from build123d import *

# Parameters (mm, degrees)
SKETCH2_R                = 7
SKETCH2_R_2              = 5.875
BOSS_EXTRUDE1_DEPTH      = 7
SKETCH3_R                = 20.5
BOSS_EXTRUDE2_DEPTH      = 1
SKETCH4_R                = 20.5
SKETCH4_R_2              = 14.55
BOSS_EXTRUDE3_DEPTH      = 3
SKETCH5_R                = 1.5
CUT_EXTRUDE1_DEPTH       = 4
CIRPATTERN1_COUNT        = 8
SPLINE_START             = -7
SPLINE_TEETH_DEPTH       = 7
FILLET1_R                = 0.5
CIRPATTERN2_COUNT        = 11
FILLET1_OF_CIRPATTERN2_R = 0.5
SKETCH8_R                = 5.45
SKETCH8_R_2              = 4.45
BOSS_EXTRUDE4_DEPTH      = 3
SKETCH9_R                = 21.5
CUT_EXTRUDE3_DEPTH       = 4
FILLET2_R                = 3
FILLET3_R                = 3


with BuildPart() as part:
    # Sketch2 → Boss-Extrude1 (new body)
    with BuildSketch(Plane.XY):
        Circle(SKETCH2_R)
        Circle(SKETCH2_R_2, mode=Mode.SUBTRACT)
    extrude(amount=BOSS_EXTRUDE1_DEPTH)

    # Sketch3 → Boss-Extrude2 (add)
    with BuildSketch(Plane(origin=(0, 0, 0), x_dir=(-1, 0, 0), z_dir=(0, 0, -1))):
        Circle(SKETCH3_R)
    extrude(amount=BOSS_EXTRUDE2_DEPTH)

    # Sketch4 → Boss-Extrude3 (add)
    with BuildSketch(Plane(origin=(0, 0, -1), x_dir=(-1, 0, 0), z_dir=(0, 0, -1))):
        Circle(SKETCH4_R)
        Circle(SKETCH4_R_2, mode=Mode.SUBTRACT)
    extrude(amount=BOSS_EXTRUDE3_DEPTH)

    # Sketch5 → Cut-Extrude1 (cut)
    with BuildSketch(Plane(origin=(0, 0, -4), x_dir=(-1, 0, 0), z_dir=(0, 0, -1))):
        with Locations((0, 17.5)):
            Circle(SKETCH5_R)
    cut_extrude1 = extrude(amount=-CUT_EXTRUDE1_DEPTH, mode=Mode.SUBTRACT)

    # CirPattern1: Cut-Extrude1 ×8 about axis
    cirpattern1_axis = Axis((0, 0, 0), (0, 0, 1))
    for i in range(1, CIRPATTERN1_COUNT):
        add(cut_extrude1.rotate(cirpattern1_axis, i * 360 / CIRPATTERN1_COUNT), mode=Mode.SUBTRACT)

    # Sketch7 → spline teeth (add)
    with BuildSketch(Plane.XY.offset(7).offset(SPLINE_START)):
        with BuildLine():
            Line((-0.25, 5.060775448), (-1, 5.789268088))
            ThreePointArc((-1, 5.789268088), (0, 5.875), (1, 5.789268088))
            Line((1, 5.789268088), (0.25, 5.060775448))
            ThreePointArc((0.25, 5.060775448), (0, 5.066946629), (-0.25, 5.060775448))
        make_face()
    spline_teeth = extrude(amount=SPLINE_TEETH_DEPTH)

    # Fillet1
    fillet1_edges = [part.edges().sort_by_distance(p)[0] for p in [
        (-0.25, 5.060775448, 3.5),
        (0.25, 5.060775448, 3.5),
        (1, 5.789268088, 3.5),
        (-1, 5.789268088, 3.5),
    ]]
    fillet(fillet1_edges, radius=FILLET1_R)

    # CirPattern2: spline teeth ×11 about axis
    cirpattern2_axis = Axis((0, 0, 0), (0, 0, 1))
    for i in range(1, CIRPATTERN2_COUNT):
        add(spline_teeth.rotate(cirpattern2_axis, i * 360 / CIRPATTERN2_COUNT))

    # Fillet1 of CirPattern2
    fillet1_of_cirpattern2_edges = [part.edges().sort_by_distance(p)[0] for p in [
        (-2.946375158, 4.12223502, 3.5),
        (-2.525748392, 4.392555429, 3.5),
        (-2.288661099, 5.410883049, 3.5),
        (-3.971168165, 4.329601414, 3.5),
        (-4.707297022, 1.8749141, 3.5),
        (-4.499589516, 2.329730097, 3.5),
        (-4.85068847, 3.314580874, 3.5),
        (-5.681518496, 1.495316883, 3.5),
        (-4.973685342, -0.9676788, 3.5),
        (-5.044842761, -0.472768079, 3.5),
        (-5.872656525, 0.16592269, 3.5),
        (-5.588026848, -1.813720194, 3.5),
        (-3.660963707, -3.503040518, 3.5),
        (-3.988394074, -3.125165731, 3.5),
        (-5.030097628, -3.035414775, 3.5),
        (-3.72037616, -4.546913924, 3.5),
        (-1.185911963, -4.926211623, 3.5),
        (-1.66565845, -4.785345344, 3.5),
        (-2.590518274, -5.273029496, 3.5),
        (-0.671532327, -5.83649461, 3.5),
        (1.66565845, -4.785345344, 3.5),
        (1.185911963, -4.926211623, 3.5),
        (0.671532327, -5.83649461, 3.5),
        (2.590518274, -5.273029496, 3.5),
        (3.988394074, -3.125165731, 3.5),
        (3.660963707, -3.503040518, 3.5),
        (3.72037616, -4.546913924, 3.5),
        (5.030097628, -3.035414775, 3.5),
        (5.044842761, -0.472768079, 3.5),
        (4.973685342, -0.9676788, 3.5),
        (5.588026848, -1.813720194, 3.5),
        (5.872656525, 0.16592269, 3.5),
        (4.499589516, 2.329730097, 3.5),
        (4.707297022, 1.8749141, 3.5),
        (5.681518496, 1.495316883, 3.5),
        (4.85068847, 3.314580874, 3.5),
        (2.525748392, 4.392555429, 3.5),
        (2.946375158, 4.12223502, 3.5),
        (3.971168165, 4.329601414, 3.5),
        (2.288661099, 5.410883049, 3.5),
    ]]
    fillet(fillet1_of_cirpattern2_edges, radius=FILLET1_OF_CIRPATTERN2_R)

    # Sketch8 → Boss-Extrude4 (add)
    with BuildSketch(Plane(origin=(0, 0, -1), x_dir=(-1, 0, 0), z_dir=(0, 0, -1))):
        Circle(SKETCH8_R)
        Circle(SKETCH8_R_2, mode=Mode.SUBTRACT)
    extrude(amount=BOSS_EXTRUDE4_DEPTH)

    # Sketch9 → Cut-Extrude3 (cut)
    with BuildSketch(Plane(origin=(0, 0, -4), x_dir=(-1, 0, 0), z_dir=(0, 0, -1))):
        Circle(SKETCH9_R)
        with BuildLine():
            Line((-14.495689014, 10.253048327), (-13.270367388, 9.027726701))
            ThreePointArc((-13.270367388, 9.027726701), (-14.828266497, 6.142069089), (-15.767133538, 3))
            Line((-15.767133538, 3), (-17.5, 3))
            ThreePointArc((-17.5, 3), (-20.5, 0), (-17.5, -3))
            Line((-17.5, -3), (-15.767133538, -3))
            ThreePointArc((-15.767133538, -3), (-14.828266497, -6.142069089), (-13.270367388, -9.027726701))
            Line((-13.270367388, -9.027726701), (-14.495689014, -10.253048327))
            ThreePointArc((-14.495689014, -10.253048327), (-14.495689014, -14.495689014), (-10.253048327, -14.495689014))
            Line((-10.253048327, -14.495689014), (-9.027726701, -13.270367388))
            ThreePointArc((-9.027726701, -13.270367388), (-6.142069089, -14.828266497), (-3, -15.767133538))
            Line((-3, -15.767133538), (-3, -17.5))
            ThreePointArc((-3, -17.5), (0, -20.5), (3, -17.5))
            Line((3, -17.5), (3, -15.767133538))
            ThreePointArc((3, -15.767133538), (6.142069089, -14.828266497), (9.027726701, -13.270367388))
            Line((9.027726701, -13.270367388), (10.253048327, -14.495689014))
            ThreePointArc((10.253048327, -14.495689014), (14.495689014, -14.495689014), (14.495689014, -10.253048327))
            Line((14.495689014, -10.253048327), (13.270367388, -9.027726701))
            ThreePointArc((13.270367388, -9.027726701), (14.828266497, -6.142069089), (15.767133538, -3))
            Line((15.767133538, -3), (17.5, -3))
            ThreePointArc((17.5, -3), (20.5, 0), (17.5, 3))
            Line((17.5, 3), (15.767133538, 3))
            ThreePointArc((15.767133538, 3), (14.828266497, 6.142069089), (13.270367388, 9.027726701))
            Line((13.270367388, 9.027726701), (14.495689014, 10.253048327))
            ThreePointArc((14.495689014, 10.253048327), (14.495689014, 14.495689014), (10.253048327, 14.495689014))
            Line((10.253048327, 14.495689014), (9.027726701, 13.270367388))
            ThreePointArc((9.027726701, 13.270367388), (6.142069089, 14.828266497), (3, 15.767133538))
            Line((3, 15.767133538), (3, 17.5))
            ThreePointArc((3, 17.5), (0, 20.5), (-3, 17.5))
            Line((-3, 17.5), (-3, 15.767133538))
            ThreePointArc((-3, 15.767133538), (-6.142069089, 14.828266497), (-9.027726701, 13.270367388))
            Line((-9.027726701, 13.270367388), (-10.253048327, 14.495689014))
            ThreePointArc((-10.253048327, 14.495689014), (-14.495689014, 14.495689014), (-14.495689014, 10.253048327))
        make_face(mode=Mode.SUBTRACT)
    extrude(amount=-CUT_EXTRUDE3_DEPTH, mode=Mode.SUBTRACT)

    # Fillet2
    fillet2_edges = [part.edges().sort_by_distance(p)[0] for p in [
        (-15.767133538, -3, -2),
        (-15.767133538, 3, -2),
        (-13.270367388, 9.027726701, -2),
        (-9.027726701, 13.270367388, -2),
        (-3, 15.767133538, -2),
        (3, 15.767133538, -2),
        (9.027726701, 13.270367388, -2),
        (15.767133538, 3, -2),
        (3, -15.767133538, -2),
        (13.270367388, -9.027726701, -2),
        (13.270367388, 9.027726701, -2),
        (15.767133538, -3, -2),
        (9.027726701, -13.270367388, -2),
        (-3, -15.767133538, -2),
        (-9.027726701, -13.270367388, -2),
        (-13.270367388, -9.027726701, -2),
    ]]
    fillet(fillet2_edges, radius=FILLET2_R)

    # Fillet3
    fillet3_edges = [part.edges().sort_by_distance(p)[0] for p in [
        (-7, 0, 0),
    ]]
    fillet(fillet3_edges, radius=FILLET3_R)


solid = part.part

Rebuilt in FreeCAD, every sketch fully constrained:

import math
import FreeCAD as App
import Part
import Sketcher
Q = App.Units.Quantity


def edges_at(feature, points):
    """Names of the edges that pass closest to the given points."""
    edges = feature.Shape.Edges
    near = lambda p: min(range(len(edges)), key=lambda i: edges[i].distToShape(Part.Vertex(*p))[0])
    return sorted({f"Edge{near(p) + 1}" for p in points})

doc = App.newDocument("Part")
body = doc.addObject("PartDesign::Body", "Body")

sketch1 = body.newObject("Sketcher::SketchObject", "Sketch")
sketch1.AttachmentSupport = (doc.getObject("XY_Plane"), [""])
sketch1.MapMode = "FlatFace"
sketch1.addGeometry([
    Part.Circle(App.Vector(0, 0, 0), App.Vector(0, 0, 1), 7),
    Part.Circle(App.Vector(0, 0, 0), App.Vector(0, 0, 1), 6),
], False)
sketch1.addConstraint([
    Sketcher.Constraint("Coincident", 0, 3, -1, 1),
    Sketcher.Constraint("Coincident", 1, 3, -1, 1),
    Sketcher.Constraint("Diameter", 0, Q("14 mm")),
    Sketcher.Constraint("Diameter", 1, Q("11.75 mm")),
])
pad1 = body.newObject("PartDesign::Pad", "Pad")
pad1.Profile = sketch1
pad1.Length = 7

sketch2 = body.newObject("Sketcher::SketchObject", "Sketch001")
sketch2.AttachmentSupport = (doc.getObject("XY_Plane"), [""])
sketch2.MapMode = "FlatFace"
sketch2.addGeometry(Part.Circle(App.Vector(0, 0, 0), App.Vector(0, 0, 1), 20), False)
sketch2.addConstraint([
    Sketcher.Constraint("Coincident", 0, 3, -1, 1),
    Sketcher.Constraint("Diameter", 0, Q("41 mm")),
])
pad2 = body.newObject("PartDesign::Pad", "Pad001")
pad2.Profile = sketch2
pad2.Length = 1
pad2.Reversed = True

sketch3 = body.newObject("Sketcher::SketchObject", "Sketch002")
sketch3.AttachmentSupport = (doc.getObject("XY_Plane"), [""])
sketch3.MapMode = "FlatFace"
sketch3.AttachmentOffset = App.Placement(App.Vector(0, 0, -1), App.Rotation())
sketch3.addGeometry([
    Part.Circle(App.Vector(0, 0, 0), App.Vector(0, 0, 1), 20),
    Part.Circle(App.Vector(0, 0, 0), App.Vector(0, 0, 1), 15),
], False)
sketch3.addConstraint([
    Sketcher.Constraint("Coincident", 0, 3, -1, 1),
    Sketcher.Constraint("Coincident", 1, 3, -1, 1),
    Sketcher.Constraint("Diameter", 0, Q("41 mm")),
    Sketcher.Constraint("Diameter", 1, Q("29.1 mm")),
])
pad3 = body.newObject("PartDesign::Pad", "Pad002")
pad3.Profile = sketch3
pad3.Length = 3
pad3.Reversed = True

sketch4 = body.newObject("Sketcher::SketchObject", "Sketch003")
sketch4.AttachmentSupport = (doc.getObject("XY_Plane"), [""])
sketch4.MapMode = "FlatFace"
sketch4.AttachmentOffset = App.Placement(App.Vector(0, 0, -4), App.Rotation())
sketch4.addGeometry(Part.Circle(App.Vector(0, 17.5, 0), App.Vector(0, 0, 1), 1.5), False)
sketch4.addConstraint([
    Sketcher.Constraint("PointOnObject", 0, 3, -2),
    Sketcher.Constraint("Diameter", 0, Q("3 mm")),
    Sketcher.Constraint("DistanceY", -1, 1, 0, 3, Q("17.5 mm")),
])
pocket1 = body.newObject("PartDesign::Pocket", "Pocket")
pocket1.Profile = sketch4
pocket1.Length = 4
pocket1.Reversed = True
doc.recompute()

polarpattern = body.newObject("PartDesign::PolarPattern", "PolarPattern")
polarpattern.Originals = [pocket1]
polarpattern.Axis = (doc.getObject("Z_Axis"), [""])
polarpattern.Angle = 360
polarpattern.Occurrences = 8
body.Tip = polarpattern

sketch5 = body.newObject("Sketcher::SketchObject", "Sketch004")
sketch5.AttachmentSupport = (doc.getObject("XY_Plane"), [""])
sketch5.MapMode = "FlatFace"
sketch5.addGeometry([
    Part.LineSegment(App.Vector(-1, 5.8, 0), App.Vector(-0.2, 5.1, 0)),
    Part.ArcOfCircle(Part.Circle(App.Vector(0, 0, 0), App.Vector(0, 0, 1), 5.1), math.radians(87.17), math.radians(92.83)),
    Part.LineSegment(App.Vector(0.2, 5.1, 0), App.Vector(1, 5.8, 0)),
    Part.ArcOfCircle(Part.Circle(App.Vector(0, 0, 0), App.Vector(0, 0, 1), 5.9), math.radians(80.2), math.radians(99.8)),
], False)
sketch5.addConstraint([
    Sketcher.Constraint("Coincident", 0, 2, 1, 2),
    Sketcher.Constraint("Coincident", 1, 1, 2, 1),
    Sketcher.Constraint("Coincident", 2, 2, 3, 1),
    Sketcher.Constraint("Coincident", 3, 2, 0, 1),
    Sketcher.Constraint("Coincident", 1, 3, -1, 1),
    Sketcher.Constraint("Coincident", 3, 3, -1, 1),
    Sketcher.Constraint("Horizontal", 0, 2, 1, 1),
    Sketcher.Constraint("Horizontal", 2, 2, 3, 2),
    Sketcher.Constraint("DistanceX", -1, 1, 2, 2, Q("1 mm")),
    Sketcher.Constraint("Radius", 3, Q("5.875 mm")),
    Sketcher.Constraint("DistanceX", 0, 2, 1, 1, Q("0.5 mm")),
    Sketcher.Constraint("Radius", 1, Q("5.066946 mm")),
])
pad4 = body.newObject("PartDesign::Pad", "Pad003")
pad4.Profile = sketch5
pad4.Length = 7
doc.recompute()

fillet = body.newObject("PartDesign::Fillet", "Fillet")
fillet.Base = (pad4, edges_at(pad4, [
    (-0.25, 5.061, 3.5),
    (0.25, 5.061, 3.5),
    (1, 5.789, 3.5),
    (-1, 5.789, 3.5),
]))
fillet.Radius = 0.5
doc.recompute()

polarpattern2 = body.newObject("PartDesign::PolarPattern", "PolarPattern001")
polarpattern2.Originals = [pad4]
polarpattern2.Axis = (doc.getObject("Z_Axis"), [""])
polarpattern2.Angle = 360
polarpattern2.Occurrences = 11
body.Tip = polarpattern2
doc.recompute()

fillet2 = body.newObject("PartDesign::Fillet", "Fillet001")
fillet2.Base = (polarpattern2, edges_at(polarpattern2, [
    (-2.946, 4.122, 3.5),
    (-2.526, 4.393, 3.5),
    (-2.289, 5.411, 3.5),
    (-3.971, 4.33, 3.5),
    (-4.707, 1.875, 3.5),
    (-4.5, 2.33, 3.5),
    (-4.851, 3.315, 3.5),
    (-5.682, 1.495, 3.5),
    (-4.974, -0.968, 3.5),
    (-5.045, -0.473, 3.5),
    (-5.873, 0.166, 3.5),
    (-5.588, -1.814, 3.5),
    (-3.661, -3.503, 3.5),
    (-3.988, -3.125, 3.5),
    (-5.03, -3.035, 3.5),
    (-3.72, -4.547, 3.5),
    (-1.186, -4.926, 3.5),
    (-1.666, -4.785, 3.5),
    (-2.591, -5.273, 3.5),
    (-0.672, -5.836, 3.5),
    (1.666, -4.785, 3.5),
    (1.186, -4.926, 3.5),
    (0.672, -5.836, 3.5),
    (2.591, -5.273, 3.5),
    (3.988, -3.125, 3.5),
    (3.661, -3.503, 3.5),
    (3.72, -4.547, 3.5),
    (5.03, -3.035, 3.5),
    (5.045, -0.473, 3.5),
    (4.974, -0.968, 3.5),
    (5.588, -1.814, 3.5),
    (5.873, 0.166, 3.5),
    (4.5, 2.33, 3.5),
    (4.707, 1.875, 3.5),
    (5.682, 1.495, 3.5),
    (4.851, 3.315, 3.5),
    (2.526, 4.393, 3.5),
    (2.946, 4.122, 3.5),
    (3.971, 4.33, 3.5),
    (2.289, 5.411, 3.5),
]))
fillet2.Radius = 0.5

sketch6 = body.newObject("Sketcher::SketchObject", "Sketch005")
sketch6.AttachmentSupport = (doc.getObject("XY_Plane"), [""])
sketch6.MapMode = "FlatFace"
sketch6.AttachmentOffset = App.Placement(App.Vector(0, 0, -1), App.Rotation())
sketch6.addGeometry([
    Part.Circle(App.Vector(0, 0, 0), App.Vector(0, 0, 1), 5.5),
    Part.Circle(App.Vector(0, 0, 0), App.Vector(0, 0, 1), 4.5),
], False)
sketch6.addConstraint([
    Sketcher.Constraint("Coincident", 0, 3, -1, 1),
    Sketcher.Constraint("Coincident", 1, 3, -1, 1),
    Sketcher.Constraint("Diameter", 0, Q("10.9 mm")),
    Sketcher.Constraint("Diameter", 1, Q("8.9 mm")),
])
pad5 = body.newObject("PartDesign::Pad", "Pad004")
pad5.Profile = sketch6
pad5.Length = 3
pad5.Reversed = True

sketch7 = body.newObject("Sketcher::SketchObject", "Sketch006")
sketch7.AttachmentSupport = (doc.getObject("XY_Plane"), [""])
sketch7.MapMode = "FlatFace"
sketch7.AttachmentOffset = App.Placement(App.Vector(0, 0, -4), App.Rotation())
sketch7.addGeometry([
    Part.Circle(App.Vector(0, 0, 0), App.Vector(0, 0, 1), 21.5),
    Part.LineSegment(App.Vector(13.3, 9, 0), App.Vector(14.5, 10.3, 0)),
    Part.ArcOfCircle(Part.Circle(App.Vector(12.4, 12.4, 0), App.Vector(0, 0, 1), 3), math.radians(-45), math.radians(135)),
    Part.LineSegment(App.Vector(10.3, 14.5, 0), App.Vector(9, 13.3, 0)),
    Part.ArcOfCircle(Part.Circle(App.Vector(0, 0, 0), App.Vector(0, 0, 1), 16.1), math.radians(56), math.radians(79)),
    Part.LineSegment(App.Vector(3, 15.8, 0), App.Vector(3, 17.5, 0)),
    Part.ArcOfCircle(Part.Circle(App.Vector(0, 17.5, 0), App.Vector(0, 0, 1), 3), math.radians(0), math.radians(180)),
    Part.LineSegment(App.Vector(-3, 17.5, 0), App.Vector(-3, 15.8, 0)),
    Part.ArcOfCircle(Part.Circle(App.Vector(0, 0, 0), App.Vector(0, 0, 1), 16.1), math.radians(101), math.radians(124)),
    Part.LineSegment(App.Vector(-9, 13.3, 0), App.Vector(-10.3, 14.5, 0)),
    Part.ArcOfCircle(Part.Circle(App.Vector(-12.4, 12.4, 0), App.Vector(0, 0, 1), 3), math.radians(45), math.radians(225)),
    Part.LineSegment(App.Vector(-14.5, 10.3, 0), App.Vector(-13.3, 9, 0)),
    Part.ArcOfCircle(Part.Circle(App.Vector(0, 0, 0), App.Vector(0, 0, 1), 16.1), math.radians(146), math.radians(169)),
    Part.LineSegment(App.Vector(-15.8, 3, 0), App.Vector(-17.5, 3, 0)),
    Part.ArcOfCircle(Part.Circle(App.Vector(-17.5, 0, 0), App.Vector(0, 0, 1), 3), math.radians(90), math.radians(270)),
    Part.LineSegment(App.Vector(-17.5, -3, 0), App.Vector(-15.8, -3, 0)),
    Part.ArcOfCircle(Part.Circle(App.Vector(0, 0, 0), App.Vector(0, 0, 1), 16.1), math.radians(-169), math.radians(-146)),
    Part.LineSegment(App.Vector(-13.3, -9, 0), App.Vector(-14.5, -10.3, 0)),
    Part.ArcOfCircle(Part.Circle(App.Vector(-12.4, -12.4, 0), App.Vector(0, 0, 1), 3), math.radians(135), math.radians(315)),
    Part.LineSegment(App.Vector(-10.3, -14.5, 0), App.Vector(-9, -13.3, 0)),
    Part.ArcOfCircle(Part.Circle(App.Vector(0, 0, 0), App.Vector(0, 0, 1), 16.1), math.radians(-124), math.radians(-101)),
    Part.LineSegment(App.Vector(-3, -15.8, 0), App.Vector(-3, -17.5, 0)),
    Part.ArcOfCircle(Part.Circle(App.Vector(0, -17.5, 0), App.Vector(0, 0, 1), 3), math.radians(180), math.radians(360)),
    Part.LineSegment(App.Vector(3, -17.5, 0), App.Vector(3, -15.8, 0)),
    Part.ArcOfCircle(Part.Circle(App.Vector(0, 0, 0), App.Vector(0, 0, 1), 16.1), math.radians(-79), math.radians(-56)),
    Part.LineSegment(App.Vector(9, -13.3, 0), App.Vector(10.3, -14.5, 0)),
    Part.ArcOfCircle(Part.Circle(App.Vector(12.4, -12.4, 0), App.Vector(0, 0, 1), 3), math.radians(-135), math.radians(45)),
    Part.LineSegment(App.Vector(14.5, -10.3, 0), App.Vector(13.3, -9, 0)),
    Part.ArcOfCircle(Part.Circle(App.Vector(0, 0, 0), App.Vector(0, 0, 1), 16.1), math.radians(-34), math.radians(-11)),
    Part.LineSegment(App.Vector(15.8, -3, 0), App.Vector(17.5, -3, 0)),
    Part.ArcOfCircle(Part.Circle(App.Vector(17.5, 0, 0), App.Vector(0, 0, 1), 3), math.radians(-90), math.radians(90)),
    Part.LineSegment(App.Vector(17.5, 3, 0), App.Vector(15.8, 3, 0)),
    Part.ArcOfCircle(Part.Circle(App.Vector(0, 0, 0), App.Vector(0, 0, 1), 16.1), math.radians(11), math.radians(34)),
], False)
sketch7.addConstraint([
    Sketcher.Constraint("Tangent", 1, 2, 2, 1),
    Sketcher.Constraint("Tangent", 2, 2, 3, 1),
    Sketcher.Constraint("Coincident", 3, 2, 4, 1),
    Sketcher.Constraint("Coincident", 4, 2, 5, 1),
    Sketcher.Constraint("Tangent", 5, 2, 6, 1),
    Sketcher.Constraint("Tangent", 6, 2, 7, 1),
    Sketcher.Constraint("Coincident", 7, 2, 8, 1),
    Sketcher.Constraint("Coincident", 8, 2, 9, 1),
    Sketcher.Constraint("Tangent", 9, 2, 10, 1),
    Sketcher.Constraint("Tangent", 10, 2, 11, 1),
    Sketcher.Constraint("Coincident", 11, 2, 12, 1),
    Sketcher.Constraint("Coincident", 12, 2, 13, 1),
    Sketcher.Constraint("Tangent", 13, 2, 14, 1),
    Sketcher.Constraint("Tangent", 14, 2, 15, 1),
    Sketcher.Constraint("Coincident", 15, 2, 16, 1),
    Sketcher.Constraint("Coincident", 16, 2, 17, 1),
    Sketcher.Constraint("Tangent", 17, 2, 18, 1),
    Sketcher.Constraint("Tangent", 18, 2, 19, 1),
    Sketcher.Constraint("Coincident", 19, 2, 20, 1),
    Sketcher.Constraint("Coincident", 20, 2, 21, 1),
    Sketcher.Constraint("Tangent", 21, 2, 22, 1),
    Sketcher.Constraint("Tangent", 22, 2, 23, 1),
    Sketcher.Constraint("Coincident", 23, 2, 24, 1),
    Sketcher.Constraint("Coincident", 24, 2, 25, 1),
    Sketcher.Constraint("Tangent", 25, 2, 26, 1),
    Sketcher.Constraint("Tangent", 26, 2, 27, 1),
    Sketcher.Constraint("Coincident", 27, 2, 28, 1),
    Sketcher.Constraint("Coincident", 28, 2, 29, 1),
    Sketcher.Constraint("Tangent", 29, 2, 30, 1),
    Sketcher.Constraint("Tangent", 30, 2, 31, 1),
    Sketcher.Constraint("Coincident", 31, 2, 32, 1),
    Sketcher.Constraint("Coincident", 32, 2, 1, 1),
    Sketcher.Constraint("Vertical", 5),
    Sketcher.Constraint("Vertical", 7),
    Sketcher.Constraint("Horizontal", 13),
    Sketcher.Constraint("Horizontal", 15),
    Sketcher.Constraint("Vertical", 21),
    Sketcher.Constraint("Vertical", 23),
    Sketcher.Constraint("Horizontal", 29),
    Sketcher.Constraint("Horizontal", 31),
    Sketcher.Constraint("Coincident", 0, 3, -1, 1),
    Sketcher.Constraint("Coincident", 4, 3, -1, 1),
    Sketcher.Constraint("Coincident", 8, 3, -1, 1),
    Sketcher.Constraint("Coincident", 12, 3, -1, 1),
    Sketcher.Constraint("Coincident", 16, 3, -1, 1),
    Sketcher.Constraint("Coincident", 20, 3, -1, 1),
    Sketcher.Constraint("Coincident", 24, 3, -1, 1),
    Sketcher.Constraint("Coincident", 28, 3, -1, 1),
    Sketcher.Constraint("Coincident", 32, 3, -1, 1),
    Sketcher.Constraint("Equal", 2, 6),
    Sketcher.Constraint("Equal", 4, 8),
    Sketcher.Constraint("Equal", 6, 10),
    Sketcher.Constraint("Equal", 8, 12),
    Sketcher.Constraint("Equal", 10, 14),
    Sketcher.Constraint("Equal", 12, 16),
    Sketcher.Constraint("Equal", 14, 18),
    Sketcher.Constraint("Equal", 16, 20),
    Sketcher.Constraint("Equal", 18, 22),
    Sketcher.Constraint("Equal", 20, 24),
    Sketcher.Constraint("Equal", 22, 26),
    Sketcher.Constraint("Equal", 24, 28),
    Sketcher.Constraint("Equal", 26, 30),
    Sketcher.Constraint("Equal", 28, 32),
    Sketcher.Constraint("Symmetric", 2, 3, 18, 3, -1, 1),
    Sketcher.Constraint("Symmetric", 6, 3, 22, 3, -1, 1),
    Sketcher.Constraint("Symmetric", 10, 3, 26, 3, -1, 1),
    Sketcher.Constraint("Symmetric", 14, 3, 30, 3, -1, 1),
    Sketcher.Constraint("Symmetric", 2, 3, 10, 3, -2),
    Sketcher.Constraint("PointOnObject", 6, 3, -2),
    Sketcher.Constraint("PointOnObject", 14, 3, -1),
    Sketcher.Constraint("Parallel", 1, 3),
    Sketcher.Constraint("Perpendicular", 3, 9),
    Sketcher.Constraint("Parallel", 9, 11),
    Sketcher.Constraint("Perpendicular", 11, 17),
    Sketcher.Constraint("Parallel", 17, 19),
    Sketcher.Constraint("Perpendicular", 19, 25),
    Sketcher.Constraint("Parallel", 25, 27),
    Sketcher.Constraint("Horizontal", 3, 2, 8, 2),
    Sketcher.Constraint("Equal", 31, 5),
    Sketcher.Constraint("Equal", 1, 3),
    Sketcher.Constraint("Diameter", 0, Q("43 mm")),
    Sketcher.Constraint("Radius", 2, Q("3 mm")),
    Sketcher.Constraint("Radius", 4, Q("16.05 mm")),
    Sketcher.Constraint("DistanceY", -1, 1, 6, 3, Q("17.5 mm")),
    Sketcher.Constraint("DistanceY", 2, 3, 3, 2, Q("0.895999 mm")),
])
pocket2 = body.newObject("PartDesign::Pocket", "Pocket001")
pocket2.Profile = sketch7
pocket2.Length = 4
pocket2.Reversed = True
doc.recompute()

fillet3 = body.newObject("PartDesign::Fillet", "Fillet002")
fillet3.Base = (pocket2, edges_at(pocket2, [
    (-15.767, -3, -2),
    (-15.767, 3, -2),
    (-13.27, 9.028, -2),
    (-9.028, 13.27, -2),
    (-3, 15.767, -2),
    (3, 15.767, -2),
    (9.028, 13.27, -2),
    (15.767, 3, -2),
    (3, -15.767, -2),
    (13.27, -9.028, -2),
    (13.27, 9.028, -2),
    (15.767, -3, -2),
    (9.028, -13.27, -2),
    (-3, -15.767, -2),
    (-9.028, -13.27, -2),
    (-13.27, -9.028, -2),
]))
fillet3.Radius = 3
doc.recompute()

fillet4 = body.newObject("PartDesign::Fillet", "Fillet003")
fillet4.Base = (fillet3, edges_at(fillet3, [(-7, 0, 0)]))
fillet4.Radius = 3

doc.recompute()
